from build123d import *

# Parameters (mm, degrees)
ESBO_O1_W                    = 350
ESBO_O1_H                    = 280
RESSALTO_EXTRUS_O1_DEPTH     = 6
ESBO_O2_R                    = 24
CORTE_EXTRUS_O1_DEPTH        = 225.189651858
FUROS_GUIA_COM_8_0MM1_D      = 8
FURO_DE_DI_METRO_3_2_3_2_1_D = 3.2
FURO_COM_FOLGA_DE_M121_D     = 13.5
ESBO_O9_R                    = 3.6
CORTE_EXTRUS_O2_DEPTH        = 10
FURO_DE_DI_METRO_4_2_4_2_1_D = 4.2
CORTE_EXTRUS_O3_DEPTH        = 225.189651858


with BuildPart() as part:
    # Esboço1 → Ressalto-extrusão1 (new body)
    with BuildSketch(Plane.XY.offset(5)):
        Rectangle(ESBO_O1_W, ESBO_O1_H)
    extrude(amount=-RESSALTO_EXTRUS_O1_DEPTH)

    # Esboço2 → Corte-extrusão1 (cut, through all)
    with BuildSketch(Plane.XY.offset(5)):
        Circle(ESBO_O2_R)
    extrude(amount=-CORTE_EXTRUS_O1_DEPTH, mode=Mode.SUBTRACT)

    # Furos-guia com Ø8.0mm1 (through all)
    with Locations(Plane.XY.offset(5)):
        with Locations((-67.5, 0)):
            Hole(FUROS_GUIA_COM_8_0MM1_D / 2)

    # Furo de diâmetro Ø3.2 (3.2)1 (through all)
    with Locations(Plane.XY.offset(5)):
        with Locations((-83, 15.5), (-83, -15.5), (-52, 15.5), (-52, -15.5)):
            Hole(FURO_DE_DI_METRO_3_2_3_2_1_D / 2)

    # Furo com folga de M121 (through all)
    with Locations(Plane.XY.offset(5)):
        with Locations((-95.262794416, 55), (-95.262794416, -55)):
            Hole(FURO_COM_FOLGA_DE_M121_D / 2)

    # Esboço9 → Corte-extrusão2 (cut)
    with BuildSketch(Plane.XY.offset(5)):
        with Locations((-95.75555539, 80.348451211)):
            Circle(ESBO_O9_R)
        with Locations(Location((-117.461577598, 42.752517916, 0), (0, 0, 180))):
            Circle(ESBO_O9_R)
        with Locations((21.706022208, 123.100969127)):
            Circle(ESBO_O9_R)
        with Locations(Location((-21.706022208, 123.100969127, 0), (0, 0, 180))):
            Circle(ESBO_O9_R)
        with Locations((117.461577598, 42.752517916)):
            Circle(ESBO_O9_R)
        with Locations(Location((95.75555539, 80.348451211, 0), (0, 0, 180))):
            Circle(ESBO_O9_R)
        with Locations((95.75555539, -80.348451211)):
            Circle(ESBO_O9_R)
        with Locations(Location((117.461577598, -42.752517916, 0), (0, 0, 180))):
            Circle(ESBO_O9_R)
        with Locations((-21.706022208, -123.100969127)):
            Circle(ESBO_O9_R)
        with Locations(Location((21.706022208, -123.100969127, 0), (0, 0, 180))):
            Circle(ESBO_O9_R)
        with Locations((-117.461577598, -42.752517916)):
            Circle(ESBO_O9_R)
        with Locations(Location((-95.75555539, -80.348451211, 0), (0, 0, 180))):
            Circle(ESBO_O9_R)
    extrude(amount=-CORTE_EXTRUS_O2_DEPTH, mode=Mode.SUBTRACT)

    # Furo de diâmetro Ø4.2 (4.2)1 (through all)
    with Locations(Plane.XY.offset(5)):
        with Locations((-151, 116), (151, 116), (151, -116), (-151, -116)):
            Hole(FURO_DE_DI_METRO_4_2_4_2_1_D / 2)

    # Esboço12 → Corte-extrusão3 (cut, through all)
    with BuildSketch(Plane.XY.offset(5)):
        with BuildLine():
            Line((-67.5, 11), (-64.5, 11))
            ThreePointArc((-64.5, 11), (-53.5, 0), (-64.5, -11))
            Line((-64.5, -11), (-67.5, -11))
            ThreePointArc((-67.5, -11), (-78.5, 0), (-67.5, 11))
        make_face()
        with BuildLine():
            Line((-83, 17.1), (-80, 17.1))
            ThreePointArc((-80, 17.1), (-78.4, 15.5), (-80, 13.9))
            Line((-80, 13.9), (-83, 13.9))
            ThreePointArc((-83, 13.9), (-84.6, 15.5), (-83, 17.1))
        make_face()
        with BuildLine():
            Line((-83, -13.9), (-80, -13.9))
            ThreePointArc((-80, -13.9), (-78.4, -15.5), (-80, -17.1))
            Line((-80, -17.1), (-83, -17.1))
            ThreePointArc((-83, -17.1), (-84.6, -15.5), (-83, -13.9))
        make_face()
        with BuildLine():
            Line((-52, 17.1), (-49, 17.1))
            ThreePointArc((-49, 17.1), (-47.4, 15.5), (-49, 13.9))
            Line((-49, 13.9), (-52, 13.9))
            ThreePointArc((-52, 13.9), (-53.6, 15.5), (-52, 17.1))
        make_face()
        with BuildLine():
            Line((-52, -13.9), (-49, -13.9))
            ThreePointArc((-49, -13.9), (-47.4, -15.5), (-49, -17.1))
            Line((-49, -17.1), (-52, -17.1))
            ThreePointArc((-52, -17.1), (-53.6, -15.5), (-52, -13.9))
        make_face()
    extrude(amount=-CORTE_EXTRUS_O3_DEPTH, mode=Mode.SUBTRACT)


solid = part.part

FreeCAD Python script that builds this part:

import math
import FreeCAD as App
import Part
import Sketcher

V = App.Vector

doc = App.newDocument("Part")
body = doc.addObject("PartDesign::Body", "Body")

# Sketch on XY plane
sketch1 = body.newObject("Sketcher::SketchObject", "Sketch")
sketch1.AttachmentSupport = (doc.getObject("XY_Plane"), [""])
sketch1.MapMode = "FlatFace"
sketch1.AttachmentOffset = App.Placement(V(0, 0, 5), App.Rotation())
sketch1.addGeometry(Part.LineSegment(V(-175, 140, 0), V(-175, -140, 0)), False)
sketch1.addGeometry(Part.LineSegment(V(-175, -140, 0), V(175, -140, 0)), False)
sketch1.addGeometry(Part.LineSegment(V(175, -140, 0), V(175, 140, 0)), False)
sketch1.addGeometry(Part.LineSegment(V(175, 140, 0), V(-175, 140, 0)), False)
sketch1.addConstraint(Sketcher.Constraint("Coincident", 0, 2, 1, 1))
sketch1.addConstraint(Sketcher.Constraint("Coincident", 1, 2, 2, 1))
sketch1.addConstraint(Sketcher.Constraint("Coincident", 2, 2, 3, 1))
sketch1.addConstraint(Sketcher.Constraint("Coincident", 3, 2, 0, 1))
sketch1.addConstraint(Sketcher.Constraint("Vertical", 0))
sketch1.addConstraint(Sketcher.Constraint("Horizontal", 1))
sketch1.addConstraint(Sketcher.Constraint("Vertical", 2))
sketch1.addConstraint(Sketcher.Constraint("Horizontal", 3))
sketch1.addConstraint(Sketcher.Constraint("Symmetric", 0, 2, 2, 2, -1, 1))
sketch1.addConstraint(Sketcher.Constraint("DistanceX", 1, 1, 1, 2, 350.0))
sketch1.addConstraint(Sketcher.Constraint("DistanceY", 0, 2, 0, 1, 280.0))
pad1 = body.newObject("PartDesign::Pad", "Pad")
pad1.Profile = sketch1
pad1.Length = 6
pad1.Reversed = True

# Sketch on XY plane
sketch2 = body.newObject("Sketcher::SketchObject", "Sketch001")
sketch2.AttachmentSupport = (doc.getObject("XY_Plane"), [""])
sketch2.MapMode = "FlatFace"
sketch2.AttachmentOffset = App.Placement(V(0, 0, 5), App.Rotation())
sketch2.addGeometry(Part.Circle(V(0, 0, 0), V(0, 0, 1), 24), False)
sketch2.addConstraint(Sketcher.Constraint("Coincident", 0, 3, -1, 1))
sketch2.addConstraint(Sketcher.Constraint("Diameter", 0, 48.0))
pocket1 = body.newObject("PartDesign::Pocket", "Pocket")
pocket1.Profile = sketch2
pocket1.Type = "ThroughAll"

# Sketch on XY plane
sketch3 = body.newObject("Sketcher::SketchObject", "Sketch002")
sketch3.AttachmentSupport = (doc.getObject("XY_Plane"), [""])
sketch3.MapMode = "FlatFace"
sketch3.AttachmentOffset = App.Placement(V(0, 0, 5), App.Rotation())
sketch3.addGeometry(Part.Circle(V(-67.5, 0, 0), V(0, 0, 1), 4), False)
sketch3.addConstraint(Sketcher.Constraint("PointOnObject", 0, 3, -1))
sketch3.addConstraint(Sketcher.Constraint("Diameter", 0, 8.0))
sketch3.addConstraint(Sketcher.Constraint("DistanceX", 0, 3, -1, 1, 67.5))
doc.recompute()
hole = body.newObject("PartDesign::Hole", "Hole")
hole.Profile = sketch3
hole.ThreadType = "None"
hole.Diameter = 8
hole.DepthType = "ThroughAll"

# Sketch on XY plane
sketch4 = body.newObject("Sketcher::SketchObject", "Sketch003")
sketch4.AttachmentSupport = (doc.getObject("XY_Plane"), [""])
sketch4.MapMode = "FlatFace"
sketch4.AttachmentOffset = App.Placement(V(0, 0, 5), App.Rotation())
sketch4.addGeometry(Part.Circle(V(-83, 15.5, 0), V(0, 0, 1), 1.6), False)
sketch4.addGeometry(Part.Circle(V(-83, -15.5, 0), V(0, 0, 1), 1.6), False)
sketch4.addGeometry(Part.Circle(V(-52, 15.5, 0), V(0, 0, 1), 1.6), False)
sketch4.addGeometry(Part.Circle(V(-52, -15.5, 0), V(0, 0, 1), 1.6), False)
sketch4.addConstraint(Sketcher.Constraint("Equal", 0, 1))
sketch4.addConstraint(Sketcher.Constraint("Equal", 1, 2))
sketch4.addConstraint(Sketcher.Constraint("Equal", 2, 3))
sketch4.addConstraint(Sketcher.Constraint("Symmetric", 0, 3, 1, 3, -1))
sketch4.addConstraint(Sketcher.Constraint("Symmetric", 2, 3, 3, 3, -1))
sketch4.addConstraint(Sketcher.Constraint("Horizontal", 0, 3, 2, 3))
sketch4.addConstraint(Sketcher.Constraint("Diameter", 0, 3.2))
sketch4.addConstraint(Sketcher.Constraint("DistanceX", 0, 3, -1, 1, 83.0))
sketch4.addConstraint(Sketcher.Constraint("DistanceX", 2, 3, -1, 1, 52.0))
sketch4.addConstraint(Sketcher.Constraint("DistanceY", 1, 3, 0, 3, 31.0))
doc.recompute()
hole2 = body.newObject("PartDesign::Hole", "Hole001")
hole2.Profile = sketch4
hole2.ThreadType = "None"
hole2.Diameter = 3.2
hole2.DepthType = "ThroughAll"

# Sketch on XY plane
sketch5 = body.newObject("Sketcher::SketchObject", "Sketch004")
sketch5.AttachmentSupport = (doc.getObject("XY_Plane"), [""])
sketch5.MapMode = "FlatFace"
sketch5.AttachmentOffset = App.Placement(V(0, 0, 5), App.Rotation())
sketch5.addGeometry(Part.Circle(V(-95, 55, 0), V(0, 0, 1), 7), False)
sketch5.addGeometry(Part.Circle(V(-95, -55, 0), V(0, 0, 1), 7), False)
sketch5.addConstraint(Sketcher.Constraint("Equal", 0, 1))
sketch5.addConstraint(Sketcher.Constraint("Symmetric", 0, 3, 1, 3, -1))
sketch5.addConstraint(Sketcher.Constraint("Diameter", 0, 13.5))
sketch5.addConstraint(Sketcher.Constraint("DistanceY", -1, 1, 0, 3, 55.0))
sketch5.addConstraint(Sketcher.Constraint("DistanceX", 0, 3, -1, 1, 95.262794))
doc.recompute()
hole3 = body.newObject("PartDesign::Hole", "Hole002")
hole3.Profile = sketch5
hole3.ThreadType = "None"
hole3.Diameter = 13.5
hole3.DepthType = "ThroughAll"

# Sketch on XY plane
sketch6 = body.newObject("Sketcher::SketchObject", "Sketch005")
sketch6.AttachmentSupport = (doc.getObject("XY_Plane"), [""])
sketch6.MapMode = "FlatFace"
sketch6.AttachmentOffset = App.Placement(V(0, 0, 5), App.Rotation())
sketch6.addGeometry(Part.Circle(V(-95.8, 80.3, 0), V(0, 0, 1), 3.6), False)
sketch6.addGeometry(Part.Circle(V(-117.5, 42.8, 0), V(0, 0, 1), 3.6), False)
sketch6.addGeometry(Part.Circle(V(21.7, 123.1, 0), V(0, 0, 1), 3.6), False)
sketch6.addGeometry(Part.Circle(V(-21.7, 123.1, 0), V(0, 0, 1), 3.6), False)
sketch6.addGeometry(Part.Circle(V(117.5, 42.8, 0), V(0, 0, 1), 3.6), False)
sketch6.addGeometry(Part.Circle(V(95.8, 80.3, 0), V(0, 0, 1), 3.6), False)
sketch6.addGeometry(Part.Circle(V(95.8, -80.3, 0), V(0, 0, 1), 3.6), False)
sketch6.addGeometry(Part.Circle(V(117.5, -42.8, 0), V(0, 0, 1), 3.6), False)
sketch6.addGeometry(Part.Circle(V(-21.7, -123.1, 0), V(0, 0, 1), 3.6), False)
sketch6.addGeometry(Part.Circle(V(21.7, -123.1, 0), V(0, 0, 1), 3.6), False)
sketch6.addGeometry(Part.Circle(V(-117.5, -42.8, 0), V(0, 0, 1), 3.6), False)
sketch6.addGeometry(Part.Circle(V(-95.8, -80.3, 0), V(0, 0, 1), 3.6), False)
sketch6.addConstraint(Sketcher.Constraint("Equal", 0, 1))
sketch6.addConstraint(Sketcher.Constraint("Equal", 1, 2))
sketch6.addConstraint(Sketcher.Constraint("Equal", 2, 3))
sketch6.addConstraint(Sketcher.Constraint("Equal", 3, 4))
sketch6.addConstraint(Sketcher.Constraint("Equal", 4, 5))
sketch6.addConstraint(Sketcher.Constraint("Equal", 5, 6))
sketch6.addConstraint(Sketcher.Constraint("Equal", 6, 7))
sketch6.addConstraint(Sketcher.Constraint("Equal", 7, 8))
sketch6.addConstraint(Sketcher.Constraint("Equal", 8, 9))
sketch6.addConstraint(Sketcher.Constraint("Equal", 9, 10))
sketch6.addConstraint(Sketcher.Constraint("Equal", 10, 11))
sketch6.addConstraint(Sketcher.Constraint("Symmetric", 0, 3, 6, 3, -1, 1))
sketch6.addConstraint(Sketcher.Constraint("Symmetric", 1, 3, 7, 3, -1, 1))
sketch6.addConstraint(Sketcher.Constraint("Symmetric", 2, 3, 8, 3, -1, 1))
sketch6.addConstraint(Sketcher.Constraint("Symmetric", 3, 3, 9, 3, -1, 1))
sketch6.addConstraint(Sketcher.Constraint("Symmetric", 4, 3, 10, 3, -1, 1))
sketch6.addConstraint(Sketcher.Constraint("Symmetric", 5, 3, 11, 3, -1, 1))
sketch6.addConstraint(Sketcher.Constraint("Symmetric", 2, 3, 3, 3, -2))
sketch6.addConstraint(Sketcher.Constraint("Symmetric", 1, 3, 4, 3, -2))
sketch6.addConstraint(Sketcher.Constraint("Symmetric", 0, 3, 5, 3, -2))
sketch6.addConstraint(Sketcher.Constraint("Diameter", 0, 7.2))
sketch6.addConstraint(Sketcher.Constraint("DistanceX", 1, 3, 2, 3, 139.1676))
sketch6.addConstraint(Sketcher.Constraint("DistanceY", -1, 1, 0, 3, 80.348451))
sketch6.addConstraint(Sketcher.Constraint("DistanceY", -1, 1, 2, 3, 123.100969))
sketch6.addConstraint(Sketcher.Constraint("DistanceY", 1, 3, 2, 3, 80.348451))
sketch6.addConstraint(Sketcher.Constraint("DistanceX", 0, 3, 5, 3, 191.511111))
sketch6.addConstraint(Sketcher.Constraint("DistanceX", 1, 3, -1, 1, 117.461578))
pocket2 = body.newObject("PartDesign::Pocket", "Pocket001")
pocket2.Profile = sketch6
pocket2.Length = 10

# Sketch on XY plane
sketch7 = body.newObject("Sketcher::SketchObject", "Sketch006")
sketch7.AttachmentSupport = (doc.getObject("XY_Plane"), [""])
sketch7.MapMode = "FlatFace"
sketch7.AttachmentOffset = App.Placement(V(0, 0, 5), App.Rotation())
sketch7.addGeometry(Part.Circle(V(-151, 116, 0), V(0, 0, 1), 2.1), False)
sketch7.addGeometry(Part.Circle(V(151, 116, 0), V(0, 0, 1), 2.1), False)
sketch7.addGeometry(Part.Circle(V(151, -116, 0), V(0, 0, 1), 2.1), False)
sketch7.addGeometry(Part.Circle(V(-151, -116, 0), V(0, 0, 1), 2.1), False)
sketch7.addConstraint(Sketcher.Constraint("Equal", 0, 1))
sketch7.addConstraint(Sketcher.Constraint("Equal", 1, 2))
sketch7.addConstraint(Sketcher.Constraint("Equal", 2, 3))
sketch7.addConstraint(Sketcher.Constraint("Symmetric", 0, 3, 2, 3, -1, 1))
sketch7.addConstraint(Sketcher.Constraint("Symmetric", 1, 3, 3, 3, -1, 1))
sketch7.addConstraint(Sketcher.Constraint("Symmetric", 0, 3, 1, 3, -2))
sketch7.addConstraint(Sketcher.Constraint("Diameter", 0, 4.2))
sketch7.addConstraint(Sketcher.Constraint("DistanceX", 0, 3, -1, 1, 151.0))
sketch7.addConstraint(Sketcher.Constraint("DistanceY", -1, 1, 0, 3, 116.0))
doc.recompute()
hole4 = body.newObject("PartDesign::Hole", "Hole003")
hole4.Profile = sketch7
hole4.ThreadType = "None"
hole4.Diameter = 4.2
hole4.DepthType = "ThroughAll"

# Sketch on XY plane
sketch8 = body.newObject("Sketcher::SketchObject", "Sketch007")
sketch8.AttachmentSupport = (doc.getObject("XY_Plane"), [""])
sketch8.MapMode = "FlatFace"
sketch8.AttachmentOffset = App.Placement(V(0, 0, 5), App.Rotation())
sketch8.addGeometry(Part.LineSegment(V(-64.5, 11, 0), V(-67.5, 11, 0)), False)
sketch8.addGeometry(Part.ArcOfCircle(Part.Circle(V(-67.5, 0, 0), V(0, 0, 1), 11), math.radians(90), math.radians(270)), False)
sketch8.addGeometry(Part.LineSegment(V(-67.5, -11, 0), V(-64.5, -11, 0)), False)
sketch8.addGeometry(Part.ArcOfCircle(Part.Circle(V(-64.5, 0, 0), V(0, 0, 1), 11), math.radians(-90), math.radians(90)), False)
sketch8.addGeometry(Part.LineSegment(V(-80, 17.1, 0), V(-83, 17.1, 0)), False)
sketch8.addGeometry(Part.ArcOfCircle(Part.Circle(V(-83, 15.5, 0), V(0, 0, 1), 1.6), math.radians(90), math.radians(270)), False)
sketch8.addGeometry(Part.LineSegment(V(-83, 13.9, 0), V(-80, 13.9, 0)), False)
sketch8.addGeometry(Part.ArcOfCircle(Part.Circle(V(-80, 15.5, 0), V(0, 0, 1), 1.6), math.radians(-90), math.radians(90)), False)
sketch8.addGeometry(Part.LineSegment(V(-80, -13.9, 0), V(-83, -13.9, 0)), False)
sketch8.addGeometry(Part.ArcOfCircle(Part.Circle(V(-83, -15.5, 0), V(0, 0, 1), 1.6), math.radians(90), math.radians(270)), False)
sketch8.addGeometry(Part.LineSegment(V(-83, -17.1, 0), V(-80, -17.1, 0)), False)
sketch8.addGeometry(Part.ArcOfCircle(Part.Circle(V(-80, -15.5, 0), V(0, 0, 1), 1.6), math.radians(-90), math.radians(90)), False)
sketch8.addGeometry(Part.LineSegment(V(-49, 17.1, 0), V(-52, 17.1, 0)), False)
sketch8.addGeometry(Part.ArcOfCircle(Part.Circle(V(-52, 15.5, 0), V(0, 0, 1), 1.6), math.radians(90), math.radians(270)), False)
sketch8.addGeometry(Part.LineSegment(V(-52, 13.9, 0), V(-49, 13.9, 0)), False)
sketch8.addGeometry(Part.ArcOfCircle(Part.Circle(V(-49, 15.5, 0), V(0, 0, 1), 1.6), math.radians(-90), math.radians(90)), False)
sketch8.addGeometry(Part.LineSegment(V(-49, -13.9, 0), V(-52, -13.9, 0)), False)
sketch8.addGeometry(Part.ArcOfCircle(Part.Circle(V(-52, -15.5, 0), V(0, 0, 1), 1.6), math.radians(90), math.radians(270)), False)
sketch8.addGeometry(Part.LineSegment(V(-52, -17.1, 0), V(-49, -17.1, 0)), False)
sketch8.addGeometry(Part.ArcOfCircle(Part.Circle(V(-49, -15.5, 0), V(0, 0, 1), 1.6), math.radians(-90), math.radians(90)), False)
sketch8.addConstraint(Sketcher.Constraint("Tangent", 0, 2, 1, 1))
sketch8.addConstraint(Sketcher.Constraint("Tangent", 1, 2, 2, 1))
sketch8.addConstraint(Sketcher.Constraint("Tangent", 2, 2, 3, 1))
sketch8.addConstraint(Sketcher.Constraint("Tangent", 3, 2, 0, 1))
sketch8.addConstraint(Sketcher.Constraint("Tangent", 4, 2, 5, 1))
sketch8.addConstraint(Sketcher.Constraint("Tangent", 5, 2, 6, 1))
sketch8.addConstraint(Sketcher.Constraint("Tangent", 6, 2, 7, 1))
sketch8.addConstraint(Sketcher.Constraint("Tangent", 7, 2, 4, 1))
sketch8.addConstraint(Sketcher.Constraint("Tangent", 8, 2, 9, 1))
sketch8.addConstraint(Sketcher.Constraint("Tangent", 9, 2, 10, 1))
sketch8.addConstraint(Sketcher.Constraint("Tangent", 10, 2, 11, 1))
sketch8.addConstraint(Sketcher.Constraint("Tangent", 11, 2, 8, 1))
sketch8.addConstraint(Sketcher.Constraint("Tangent", 12, 2, 13, 1))
sketch8.addConstraint(Sketcher.Constraint("Tangent", 13, 2, 14, 1))
sketch8.addConstraint(Sketcher.Constraint("Tangent", 14, 2, 15, 1))
sketch8.addConstraint(Sketcher.Constraint("Tangent", 15, 2, 12, 1))
sketch8.addConstraint(Sketcher.Constraint("Tangent", 16, 2, 17, 1))
sketch8.addConstraint(Sketcher.Constraint("Tangent", 17, 2, 18, 1))
sketch8.addConstraint(Sketcher.Constraint("Tangent", 18, 2, 19, 1))
sketch8.addConstraint(Sketcher.Constraint("Tangent", 19, 2, 16, 1))
sketch8.addConstraint(Sketcher.Constraint("Horizontal", 0))
sketch8.addConstraint(Sketcher.Constraint("Horizontal", 2))
sketch8.addConstraint(Sketcher.Constraint("Horizontal", 4))
sketch8.addConstraint(Sketcher.Constraint("Horizontal", 6))
sketch8.addConstraint(Sketcher.Constraint("Horizontal", 8))
sketch8.addConstraint(Sketcher.Constraint("Horizontal", 10))
sketch8.addConstraint(Sketcher.Constraint("Horizontal", 12))
sketch8.addConstraint(Sketcher.Constraint("Horizontal", 14))
sketch8.addConstraint(Sketcher.Constraint("Horizontal", 16))
sketch8.addConstraint(Sketcher.Constraint("Horizontal", 18))
sketch8.addConstraint(Sketcher.Constraint("Equal", 7, 9))
sketch8.addConstraint(Sketcher.Constraint("Equal", 11, 13))
sketch8.addConstraint(Sketcher.Constraint("Equal", 15, 17))
sketch8.addConstraint(Sketcher.Constraint("Symmetric", 5, 3, 9, 3, -1))
sketch8.addConstraint(Sketcher.Constraint("Symmetric", 13, 3, 17, 3, -1))
sketch8.addConstraint(Sketcher.Constraint("PointOnObject", 1, 3, -1))
sketch8.addConstraint(Sketcher.Constraint("Horizontal", 7, 3, 13, 3))
sketch8.addConstraint(Sketcher.Constraint("Vertical", 7, 3, 11, 3))
sketch8.addConstraint(Sketcher.Constraint("Vertical", 15, 3, 19, 3))
sketch8.addConstraint(Sketcher.Constraint("Equal", 2, 4))
sketch8.addConstraint(Sketcher.Constraint("Equal", 10, 12))
sketch8.addConstraint(Sketcher.Constraint("Radius", 1, 11.0))
sketch8.addConstraint(Sketcher.Constraint("Radius", 5, 1.6))
sketch8.addConstraint(Sketcher.Constraint("DistanceX", 0, 2, 0, 1, 3.0))
sketch8.addConstraint(Sketcher.Constraint("DistanceX", 5, 3, -1, 1, 83.0))
sketch8.addConstraint(Sketcher.Constraint("DistanceX", 13, 3, -1, 1, 52.0))
sketch8.addConstraint(Sketcher.Constraint("DistanceY", 9, 3, 5, 3, 31.0))
sketch8.addConstraint(Sketcher.Constraint("DistanceX", 1, 3, -1, 1, 67.5))
pocket3 = body.newObject("PartDesign::Pocket", "Pocket002")
pocket3.Profile = sketch8
pocket3.Type = "ThroughAll"

doc.recompute()
